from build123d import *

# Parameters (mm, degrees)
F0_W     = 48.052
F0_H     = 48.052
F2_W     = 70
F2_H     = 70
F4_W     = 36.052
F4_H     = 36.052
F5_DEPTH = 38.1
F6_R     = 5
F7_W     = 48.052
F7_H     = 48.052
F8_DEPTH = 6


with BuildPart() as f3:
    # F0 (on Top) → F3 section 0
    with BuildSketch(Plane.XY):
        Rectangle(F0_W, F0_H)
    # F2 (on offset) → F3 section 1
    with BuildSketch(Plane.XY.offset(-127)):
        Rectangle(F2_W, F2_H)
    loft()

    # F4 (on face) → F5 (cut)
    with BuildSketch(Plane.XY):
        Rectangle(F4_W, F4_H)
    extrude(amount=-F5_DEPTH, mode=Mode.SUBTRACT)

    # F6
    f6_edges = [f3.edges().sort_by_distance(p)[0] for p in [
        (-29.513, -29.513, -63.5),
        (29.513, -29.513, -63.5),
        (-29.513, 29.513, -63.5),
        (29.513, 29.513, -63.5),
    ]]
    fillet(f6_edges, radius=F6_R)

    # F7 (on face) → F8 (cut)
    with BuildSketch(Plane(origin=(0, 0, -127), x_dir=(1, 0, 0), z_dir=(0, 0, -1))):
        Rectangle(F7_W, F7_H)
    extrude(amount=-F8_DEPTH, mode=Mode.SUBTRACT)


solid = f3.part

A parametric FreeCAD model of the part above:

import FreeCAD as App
import Part
import Sketcher

V = App.Vector
Q = App.Units.Quantity


def edges_at(feature, points):
    """Names of the edges that pass closest to the given points."""
    edges = feature.Shape.Edges
    near = lambda p: min(range(len(edges)), key=lambda i: edges[i].distToShape(Part.Vertex(*p))[0])
    return sorted({f"Edge{near(p) + 1}" for p in points})


def add_polygon(sketch, points):
    """Adds a closed chain of lines whose ends are joined by coincident constraints."""
    first, n = sketch.GeometryCount, len(points)
    for a, b in zip(points, points[1:] + points[:1]):
        sketch.addGeometry(Part.LineSegment(App.Vector(*a, 0), App.Vector(*b, 0)), False)
    for i in range(n):
        sketch.addConstraint(Sketcher.Constraint("Coincident", first + i, 2, first + (i + 1) % n, 1))

doc = App.newDocument("Part")
body = doc.addObject("PartDesign::Body", "Body")

sketch1 = body.newObject("Sketcher::SketchObject", "Sketch")
sketch1.AttachmentSupport = (doc.getObject("XY_Plane"), [""])
sketch1.MapMode = "FlatFace"
add_polygon(sketch1, [(-24, 24), (-24, -24), (24, -24), (24, 24)])
sketch1.addConstraint([
    Sketcher.Constraint("Vertical", 0),
    Sketcher.Constraint("Horizontal", 1),
    Sketcher.Constraint("Vertical", 2),
    Sketcher.Constraint("Horizontal", 3),
    Sketcher.Constraint("Symmetric", 0, 2, 2, 2, -1, 1),
    Sketcher.Constraint("Equal", 3, 0),
    Sketcher.Constraint("DistanceX", 1, 1, 1, 2, Q("48.052 mm")),
])

sketch2 = body.newObject("Sketcher::SketchObject", "Sketch001")
sketch2.AttachmentSupport = (doc.getObject("XY_Plane"), [""])
sketch2.MapMode = "FlatFace"
sketch2.AttachmentOffset = App.Placement(V(0, 0, -127), App.Rotation())
add_polygon(sketch2, [(-35, 35), (-35, -35), (35, -35), (35, 35)])
sketch2.addConstraint([
    Sketcher.Constraint("Vertical", 0),
    Sketcher.Constraint("Horizontal", 1),
    Sketcher.Constraint("Vertical", 2),
    Sketcher.Constraint("Horizontal", 3),
    Sketcher.Constraint("Symmetric", 0, 2, 2, 2, -1, 1),
    Sketcher.Constraint("Equal", 3, 0),
    Sketcher.Constraint("DistanceX", 1, 1, 1, 2, Q("70 mm")),
])

additiveloft = body.newObject("PartDesign::AdditiveLoft", "AdditiveLoft")
additiveloft.Profile = sketch1
additiveloft.Sections = [sketch2]

sketch3 = body.newObject("Sketcher::SketchObject", "Sketch002")
sketch3.AttachmentSupport = (doc.getObject("XY_Plane"), [""])
sketch3.MapMode = "FlatFace"
add_polygon(sketch3, [(-18, 18), (-18, -18), (18, -18), (18, 18)])
sketch3.addConstraint([
    Sketcher.Constraint("Vertical", 0),
    Sketcher.Constraint("Horizontal", 1),
    Sketcher.Constraint("Vertical", 2),
    Sketcher.Constraint("Horizontal", 3),
    Sketcher.Constraint("Symmetric", 0, 2, 2, 2, -1, 1),
    Sketcher.Constraint("Equal", 3, 0),
    Sketcher.Constraint("DistanceX", 1, 1, 1, 2, Q("36.052 mm")),
])
pocket1 = body.newObject("PartDesign::Pocket", "Pocket")
pocket1.Profile = sketch3
pocket1.Length = 38.1
doc.recompute()

fillet = body.newObject("PartDesign::Fillet", "Fillet")
fillet.Base = (pocket1, edges_at(pocket1, [
    (-29.513, -29.513, -63.5),
    (29.513, -29.513, -63.5),
    (-29.513, 29.513, -63.5),
    (29.513, 29.513, -63.5),
]))
fillet.Radius = 5

sketch4 = body.newObject("Sketcher::SketchObject", "Sketch003")
sketch4.AttachmentSupport = (doc.getObject("XY_Plane"), [""])
sketch4.MapMode = "FlatFace"
sketch4.AttachmentOffset = App.Placement(V(0, 0, -127), App.Rotation())
add_polygon(sketch4, [(-24, -24), (-24, 24), (24, 24), (24, -24)])
sketch4.addConstraint([
    Sketcher.Constraint("Vertical", 0),
    Sketcher.Constraint("Horizontal", 1),
    Sketcher.Constraint("Vertical", 2),
    Sketcher.Constraint("Horizontal", 3),
    Sketcher.Constraint("Symmetric", 0, 2, 2, 2, -1, 1),
    Sketcher.Constraint("Equal", 3, 0),
    Sketcher.Constraint("DistanceX", 1, 1, 1, 2, Q("48.052 mm")),
])
pocket2 = body.newObject("PartDesign::Pocket", "Pocket001")
pocket2.Profile = sketch4
pocket2.Length = 6
pocket2.Reversed = True

doc.recompute()
